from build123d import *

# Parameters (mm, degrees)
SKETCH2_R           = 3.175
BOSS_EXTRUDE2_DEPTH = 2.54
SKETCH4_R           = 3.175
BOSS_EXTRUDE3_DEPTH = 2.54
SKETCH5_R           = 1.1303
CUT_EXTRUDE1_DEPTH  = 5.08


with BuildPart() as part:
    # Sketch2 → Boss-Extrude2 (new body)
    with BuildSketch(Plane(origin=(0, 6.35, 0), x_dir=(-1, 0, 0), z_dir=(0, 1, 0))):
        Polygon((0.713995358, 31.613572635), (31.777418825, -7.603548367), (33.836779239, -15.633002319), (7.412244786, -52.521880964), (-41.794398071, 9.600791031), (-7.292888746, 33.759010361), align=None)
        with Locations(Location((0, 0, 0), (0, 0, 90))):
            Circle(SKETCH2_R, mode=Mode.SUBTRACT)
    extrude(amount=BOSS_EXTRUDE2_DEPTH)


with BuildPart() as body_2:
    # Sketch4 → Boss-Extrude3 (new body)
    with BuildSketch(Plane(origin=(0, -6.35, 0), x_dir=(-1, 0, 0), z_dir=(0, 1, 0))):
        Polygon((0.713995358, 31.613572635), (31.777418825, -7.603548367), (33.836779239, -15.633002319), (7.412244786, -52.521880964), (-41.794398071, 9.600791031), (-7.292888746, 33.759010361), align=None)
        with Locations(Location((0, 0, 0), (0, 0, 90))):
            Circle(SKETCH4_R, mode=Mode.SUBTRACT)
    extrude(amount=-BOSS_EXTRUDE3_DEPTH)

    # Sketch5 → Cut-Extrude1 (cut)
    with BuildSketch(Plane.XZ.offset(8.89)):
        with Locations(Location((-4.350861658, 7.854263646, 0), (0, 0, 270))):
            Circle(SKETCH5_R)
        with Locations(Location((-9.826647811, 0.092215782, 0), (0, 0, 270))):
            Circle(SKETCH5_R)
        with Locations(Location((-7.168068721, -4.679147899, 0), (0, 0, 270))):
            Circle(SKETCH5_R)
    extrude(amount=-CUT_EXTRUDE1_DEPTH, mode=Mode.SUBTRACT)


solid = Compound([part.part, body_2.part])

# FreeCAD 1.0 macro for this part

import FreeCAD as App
import Part
import Sketcher

V = App.Vector
Q = App.Units.Quantity

doc = App.newDocument("Part")
body = doc.addObject("PartDesign::Body", "Body")

# Sketch on XZ plane
sketch1 = doc.addObject("Sketcher::SketchObject", "Sketch")
body.addObject(sketch1)
sketch1.AttachmentSupport = (doc.XZ_Plane, [""])
sketch1.MapMode = "FlatFace"
sketch1.AttachmentOffset = App.Placement(V(0, 0, -0.25 * 25.4), App.Rotation())
sketch1.addGeometry(Part.LineSegment(V(-31.8, -7.6, 0), V(-0.7, 31.6, 0)), False)
sketch1.addGeometry(Part.LineSegment(V(-0.7, 31.6, 0), V(7.3, 33.8, 0)), False)
sketch1.addGeometry(Part.LineSegment(V(7.3, 33.8, 0), V(41.8, 9.6, 0)), False)
sketch1.addGeometry(Part.LineSegment(V(41.8, 9.6, 0), V(-7.4, -52.5, 0)), False)
sketch1.addGeometry(Part.LineSegment(V(-7.4, -52.5, 0), V(-33.8, -15.6, 0)), False)
sketch1.addGeometry(Part.LineSegment(V(-33.8, -15.6, 0), V(-31.8, -7.6, 0)), False)
sketch1.addGeometry(Part.Circle(V(0, 0, 0), V(0, 0, 1), 3.2), False)
sketch1.addConstraint(Sketcher.Constraint("Coincident", 0, 2, 1, 1))
sketch1.addConstraint(Sketcher.Constraint("Coincident", 1, 2, 2, 1))
sketch1.addConstraint(Sketcher.Constraint("Coincident", 2, 2, 3, 1))
sketch1.addConstraint(Sketcher.Constraint("Coincident", 3, 2, 4, 1))
sketch1.addConstraint(Sketcher.Constraint("Coincident", 4, 2, 5, 1))
sketch1.addConstraint(Sketcher.Constraint("Coincident", 5, 2, 0, 1))
sketch1.addConstraint(Sketcher.Constraint("Coincident", 6, 3, -1, 1))
sketch1.addConstraint(Sketcher.Constraint("Parallel", 0, 3))
sketch1.addConstraint(Sketcher.Constraint("Equal", 1, 5))
sketch1.addConstraint(Sketcher.Constraint("Diameter", 6, Q("0.25 in")))
sketch1.addConstraint(Sketcher.Constraint("Angle", 1, Q("14.999997 deg")))
sketch1.addConstraint(Sketcher.Constraint("Angle", 2, Q("-35.000003 deg")))
sketch1.addConstraint(Sketcher.Constraint("DistanceX", -1, 1, 2, 2, 41.794398))
sketch1.addConstraint(Sketcher.Constraint("Distance", 0, 50.02918))
sketch1.addConstraint(Sketcher.Constraint("DistanceX", -1, 1, 1, 2, 7.292889))
sketch1.addConstraint(Sketcher.Constraint("DistanceY", -1, 1, 1, 2, 33.75901))
sketch1.addConstraint(Sketcher.Constraint("DistanceY", 3, 2, -1, 1, 52.521881))
sketch1.addConstraint(Sketcher.Constraint("DistanceX", 4, 2, -1, 1, 33.836779))
sketch1.addConstraint(Sketcher.Constraint("DistanceX", 5, 2, -1, 1, 31.777419))
sketch1.addConstraint(Sketcher.Constraint("DistanceY", 5, 2, -1, 1, 7.603548))
pad1 = doc.addObject("PartDesign::Pad", "Pad")
body.addObject(pad1)
pad1.Profile = sketch1
pad1.Length = Q("0.1 in")
pad1.Reversed = True
body2 = doc.addObject("PartDesign::Body", "Body001")

# Sketch on XZ plane
sketch2 = doc.addObject("Sketcher::SketchObject", "Sketch001")
body2.addObject(sketch2)
sketch2.AttachmentSupport = (doc.getObject("XZ_Plane001"), [""])
sketch2.MapMode = "FlatFace"
sketch2.AttachmentOffset = App.Placement(V(0, 0, 0.25 * 25.4), App.Rotation())
sketch2.addGeometry(Part.LineSegment(V(-31.8, -7.6, 0), V(-0.7, 31.6, 0)), False)
sketch2.addGeometry(Part.LineSegment(V(-0.7, 31.6, 0), V(7.3, 33.8, 0)), False)
sketch2.addGeometry(Part.LineSegment(V(7.3, 33.8, 0), V(41.8, 9.6, 0)), False)
sketch2.addGeometry(Part.LineSegment(V(41.8, 9.6, 0), V(-7.4, -52.5, 0)), False)
sketch2.addGeometry(Part.LineSegment(V(-7.4, -52.5, 0), V(-33.8, -15.6, 0)), False)
sketch2.addGeometry(Part.LineSegment(V(-33.8, -15.6, 0), V(-31.8, -7.6, 0)), False)
sketch2.addGeometry(Part.Circle(V(0, 0, 0), V(0, 0, 1), 3.2), False)
sketch2.addConstraint(Sketcher.Constraint("Coincident", 0, 2, 1, 1))
sketch2.addConstraint(Sketcher.Constraint("Coincident", 1, 2, 2, 1))
sketch2.addConstraint(Sketcher.Constraint("Coincident", 2, 2, 3, 1))
sketch2.addConstraint(Sketcher.Constraint("Coincident", 3, 2, 4, 1))
sketch2.addConstraint(Sketcher.Constraint("Coincident", 4, 2, 5, 1))
sketch2.addConstraint(Sketcher.Constraint("Coincident", 5, 2, 0, 1))
sketch2.addConstraint(Sketcher.Constraint("Coincident", 6, 3, -1, 1))
sketch2.addConstraint(Sketcher.Constraint("Parallel", 0, 3))
sketch2.addConstraint(Sketcher.Constraint("Equal", 1, 5))
sketch2.addConstraint(Sketcher.Constraint("Diameter", 6, Q("0.25 in")))
sketch2.addConstraint(Sketcher.Constraint("Angle", 1, Q("14.999997 deg")))
sketch2.addConstraint(Sketcher.Constraint("Angle", 2, Q("-35.000003 deg")))
sketch2.addConstraint(Sketcher.Constraint("DistanceX", -1, 1, 2, 2, 41.794398))
sketch2.addConstraint(Sketcher.Constraint("Distance", 0, 50.02918))
sketch2.addConstraint(Sketcher.Constraint("DistanceX", -1, 1, 1, 2, 7.292889))
sketch2.addConstraint(Sketcher.Constraint("DistanceY", -1, 1, 1, 2, 33.75901))
sketch2.addConstraint(Sketcher.Constraint("DistanceY", 3, 2, -1, 1, 52.521881))
sketch2.addConstraint(Sketcher.Constraint("DistanceX", 4, 2, -1, 1, 33.836779))
sketch2.addConstraint(Sketcher.Constraint("DistanceX", 5, 2, -1, 1, 31.777419))
sketch2.addConstraint(Sketcher.Constraint("DistanceY", 5, 2, -1, 1, 7.603548))
pad2 = doc.addObject("PartDesign::Pad", "Pad001")
body2.addObject(pad2)
pad2.Profile = sketch2
pad2.Length = Q("0.1 in")

# Sketch on XZ plane
sketch3 = doc.addObject("Sketcher::SketchObject", "Sketch002")
body2.addObject(sketch3)
sketch3.AttachmentSupport = (doc.getObject("XZ_Plane001"), [""])
sketch3.MapMode = "FlatFace"
sketch3.AttachmentOffset = App.Placement(V(0, 0, 0.35 * 25.4), App.Rotation())
sketch3.addGeometry(Part.Circle(V(-4.4, 7.9, 0), V(0, 0, 1), 1.1), False)
sketch3.addGeometry(Part.Circle(V(-9.8, 0.1, 0), V(0, 0, 1), 1.1), False)
sketch3.addGeometry(Part.Circle(V(-7.2, -4.7, 0), V(0, 0, 1), 1.1), False)
sketch3.addConstraint(Sketcher.Constraint("Equal", 0, 1))
sketch3.addConstraint(Sketcher.Constraint("Equal", 1, 2))
sketch3.addConstraint(Sketcher.Constraint("Diameter", 0, Q("0.089 in")))
sketch3.addConstraint(Sketcher.Constraint("DistanceX", 0, 3, -1, 1, 4.350862))
sketch3.addConstraint(Sketcher.Constraint("DistanceX", 2, 3, -1, 1, 7.168069))
sketch3.addConstraint(Sketcher.Constraint("DistanceX", 1, 3, 2, 3, 2.658579))
sketch3.addConstraint(Sketcher.Constraint("DistanceY", 2, 3, 0, 3, 12.533412))
sketch3.addConstraint(Sketcher.Constraint("DistanceY", -1, 1, 0, 3, 7.854264))
sketch3.addConstraint(Sketcher.Constraint("DistanceY", -1, 1, 1, 3, 0.092216))
pocket1 = doc.addObject("PartDesign::Pocket", "Pocket")
body2.addObject(pocket1)
pocket1.Profile = sketch3
pocket1.Length = Q("0.2 in")

doc.recompute()
